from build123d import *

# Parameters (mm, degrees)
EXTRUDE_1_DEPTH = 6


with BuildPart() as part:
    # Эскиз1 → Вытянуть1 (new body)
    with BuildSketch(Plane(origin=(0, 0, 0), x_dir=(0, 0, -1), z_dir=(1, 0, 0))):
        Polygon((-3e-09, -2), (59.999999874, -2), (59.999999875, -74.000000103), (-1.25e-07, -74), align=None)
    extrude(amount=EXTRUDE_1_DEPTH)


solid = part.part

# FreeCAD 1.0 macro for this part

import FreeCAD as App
import Part
import Sketcher

doc = App.newDocument("Part")
params = doc.addObject("Spreadsheet::Sheet", "Params")
for row, (alias, value) in enumerate([
    ("sketch1_width", "72 mm"),
    ("sketch1_height", "60 mm"),
    ("pad1_length", "6 mm"),
], start=1):
    params.set(f"A{row}", alias)
    params.set(f"B{row}", "=" + value)
    params.setAlias(f"B{row}", alias)

body = doc.addObject("PartDesign::Body", "Body")

# Sketch on YZ plane
sketch1 = body.newObject("Sketcher::SketchObject", "Sketch")
sketch1.AttachmentSupport = (doc.getObject("YZ_Plane"), [""])
sketch1.MapMode = "FlatFace"
sketch1.addGeometry([
    Part.LineSegment(App.Vector(-2, -60, 0), App.Vector(-2, 0, 0)),
    Part.LineSegment(App.Vector(-2, 0, 0), App.Vector(-74, 0, 0)),
    Part.LineSegment(App.Vector(-74, 0, 0), App.Vector(-74, -60, 0)),
    Part.LineSegment(App.Vector(-74, -60, 0), App.Vector(-2, -60, 0)),
], False)
sketch1.addConstraint([
    Sketcher.Constraint("Coincident", 0, 2, 1, 1),
    Sketcher.Constraint("Coincident", 1, 2, 2, 1),
    Sketcher.Constraint("Coincident", 2, 2, 3, 1),
    Sketcher.Constraint("Coincident", 3, 2, 0, 1),
    Sketcher.Constraint("Vertical", 0),
    Sketcher.Constraint("Horizontal", 1),
    Sketcher.Constraint("Vertical", 2),
    Sketcher.Constraint("Horizontal", 3),
    Sketcher.Constraint("PointOnObject", 0, 2, -1),
    Sketcher.Constraint("DistanceX", 1, 2, 1, 1, 72.0),
    Sketcher.Constraint("DistanceY", 0, 1, 0, 2, 60.0),
    Sketcher.Constraint("DistanceX", 0, 2, -1, 1, 2.0),
])
sketch1.setExpression("Constraints[9]", "Params.sketch1_width")
sketch1.setExpression("Constraints[10]", "Params.sketch1_height")
pad1 = body.newObject("PartDesign::Pad", "Pad")
pad1.Profile = sketch1
pad1.setExpression("Length", "Params.pad1_length")

doc.recompute()
